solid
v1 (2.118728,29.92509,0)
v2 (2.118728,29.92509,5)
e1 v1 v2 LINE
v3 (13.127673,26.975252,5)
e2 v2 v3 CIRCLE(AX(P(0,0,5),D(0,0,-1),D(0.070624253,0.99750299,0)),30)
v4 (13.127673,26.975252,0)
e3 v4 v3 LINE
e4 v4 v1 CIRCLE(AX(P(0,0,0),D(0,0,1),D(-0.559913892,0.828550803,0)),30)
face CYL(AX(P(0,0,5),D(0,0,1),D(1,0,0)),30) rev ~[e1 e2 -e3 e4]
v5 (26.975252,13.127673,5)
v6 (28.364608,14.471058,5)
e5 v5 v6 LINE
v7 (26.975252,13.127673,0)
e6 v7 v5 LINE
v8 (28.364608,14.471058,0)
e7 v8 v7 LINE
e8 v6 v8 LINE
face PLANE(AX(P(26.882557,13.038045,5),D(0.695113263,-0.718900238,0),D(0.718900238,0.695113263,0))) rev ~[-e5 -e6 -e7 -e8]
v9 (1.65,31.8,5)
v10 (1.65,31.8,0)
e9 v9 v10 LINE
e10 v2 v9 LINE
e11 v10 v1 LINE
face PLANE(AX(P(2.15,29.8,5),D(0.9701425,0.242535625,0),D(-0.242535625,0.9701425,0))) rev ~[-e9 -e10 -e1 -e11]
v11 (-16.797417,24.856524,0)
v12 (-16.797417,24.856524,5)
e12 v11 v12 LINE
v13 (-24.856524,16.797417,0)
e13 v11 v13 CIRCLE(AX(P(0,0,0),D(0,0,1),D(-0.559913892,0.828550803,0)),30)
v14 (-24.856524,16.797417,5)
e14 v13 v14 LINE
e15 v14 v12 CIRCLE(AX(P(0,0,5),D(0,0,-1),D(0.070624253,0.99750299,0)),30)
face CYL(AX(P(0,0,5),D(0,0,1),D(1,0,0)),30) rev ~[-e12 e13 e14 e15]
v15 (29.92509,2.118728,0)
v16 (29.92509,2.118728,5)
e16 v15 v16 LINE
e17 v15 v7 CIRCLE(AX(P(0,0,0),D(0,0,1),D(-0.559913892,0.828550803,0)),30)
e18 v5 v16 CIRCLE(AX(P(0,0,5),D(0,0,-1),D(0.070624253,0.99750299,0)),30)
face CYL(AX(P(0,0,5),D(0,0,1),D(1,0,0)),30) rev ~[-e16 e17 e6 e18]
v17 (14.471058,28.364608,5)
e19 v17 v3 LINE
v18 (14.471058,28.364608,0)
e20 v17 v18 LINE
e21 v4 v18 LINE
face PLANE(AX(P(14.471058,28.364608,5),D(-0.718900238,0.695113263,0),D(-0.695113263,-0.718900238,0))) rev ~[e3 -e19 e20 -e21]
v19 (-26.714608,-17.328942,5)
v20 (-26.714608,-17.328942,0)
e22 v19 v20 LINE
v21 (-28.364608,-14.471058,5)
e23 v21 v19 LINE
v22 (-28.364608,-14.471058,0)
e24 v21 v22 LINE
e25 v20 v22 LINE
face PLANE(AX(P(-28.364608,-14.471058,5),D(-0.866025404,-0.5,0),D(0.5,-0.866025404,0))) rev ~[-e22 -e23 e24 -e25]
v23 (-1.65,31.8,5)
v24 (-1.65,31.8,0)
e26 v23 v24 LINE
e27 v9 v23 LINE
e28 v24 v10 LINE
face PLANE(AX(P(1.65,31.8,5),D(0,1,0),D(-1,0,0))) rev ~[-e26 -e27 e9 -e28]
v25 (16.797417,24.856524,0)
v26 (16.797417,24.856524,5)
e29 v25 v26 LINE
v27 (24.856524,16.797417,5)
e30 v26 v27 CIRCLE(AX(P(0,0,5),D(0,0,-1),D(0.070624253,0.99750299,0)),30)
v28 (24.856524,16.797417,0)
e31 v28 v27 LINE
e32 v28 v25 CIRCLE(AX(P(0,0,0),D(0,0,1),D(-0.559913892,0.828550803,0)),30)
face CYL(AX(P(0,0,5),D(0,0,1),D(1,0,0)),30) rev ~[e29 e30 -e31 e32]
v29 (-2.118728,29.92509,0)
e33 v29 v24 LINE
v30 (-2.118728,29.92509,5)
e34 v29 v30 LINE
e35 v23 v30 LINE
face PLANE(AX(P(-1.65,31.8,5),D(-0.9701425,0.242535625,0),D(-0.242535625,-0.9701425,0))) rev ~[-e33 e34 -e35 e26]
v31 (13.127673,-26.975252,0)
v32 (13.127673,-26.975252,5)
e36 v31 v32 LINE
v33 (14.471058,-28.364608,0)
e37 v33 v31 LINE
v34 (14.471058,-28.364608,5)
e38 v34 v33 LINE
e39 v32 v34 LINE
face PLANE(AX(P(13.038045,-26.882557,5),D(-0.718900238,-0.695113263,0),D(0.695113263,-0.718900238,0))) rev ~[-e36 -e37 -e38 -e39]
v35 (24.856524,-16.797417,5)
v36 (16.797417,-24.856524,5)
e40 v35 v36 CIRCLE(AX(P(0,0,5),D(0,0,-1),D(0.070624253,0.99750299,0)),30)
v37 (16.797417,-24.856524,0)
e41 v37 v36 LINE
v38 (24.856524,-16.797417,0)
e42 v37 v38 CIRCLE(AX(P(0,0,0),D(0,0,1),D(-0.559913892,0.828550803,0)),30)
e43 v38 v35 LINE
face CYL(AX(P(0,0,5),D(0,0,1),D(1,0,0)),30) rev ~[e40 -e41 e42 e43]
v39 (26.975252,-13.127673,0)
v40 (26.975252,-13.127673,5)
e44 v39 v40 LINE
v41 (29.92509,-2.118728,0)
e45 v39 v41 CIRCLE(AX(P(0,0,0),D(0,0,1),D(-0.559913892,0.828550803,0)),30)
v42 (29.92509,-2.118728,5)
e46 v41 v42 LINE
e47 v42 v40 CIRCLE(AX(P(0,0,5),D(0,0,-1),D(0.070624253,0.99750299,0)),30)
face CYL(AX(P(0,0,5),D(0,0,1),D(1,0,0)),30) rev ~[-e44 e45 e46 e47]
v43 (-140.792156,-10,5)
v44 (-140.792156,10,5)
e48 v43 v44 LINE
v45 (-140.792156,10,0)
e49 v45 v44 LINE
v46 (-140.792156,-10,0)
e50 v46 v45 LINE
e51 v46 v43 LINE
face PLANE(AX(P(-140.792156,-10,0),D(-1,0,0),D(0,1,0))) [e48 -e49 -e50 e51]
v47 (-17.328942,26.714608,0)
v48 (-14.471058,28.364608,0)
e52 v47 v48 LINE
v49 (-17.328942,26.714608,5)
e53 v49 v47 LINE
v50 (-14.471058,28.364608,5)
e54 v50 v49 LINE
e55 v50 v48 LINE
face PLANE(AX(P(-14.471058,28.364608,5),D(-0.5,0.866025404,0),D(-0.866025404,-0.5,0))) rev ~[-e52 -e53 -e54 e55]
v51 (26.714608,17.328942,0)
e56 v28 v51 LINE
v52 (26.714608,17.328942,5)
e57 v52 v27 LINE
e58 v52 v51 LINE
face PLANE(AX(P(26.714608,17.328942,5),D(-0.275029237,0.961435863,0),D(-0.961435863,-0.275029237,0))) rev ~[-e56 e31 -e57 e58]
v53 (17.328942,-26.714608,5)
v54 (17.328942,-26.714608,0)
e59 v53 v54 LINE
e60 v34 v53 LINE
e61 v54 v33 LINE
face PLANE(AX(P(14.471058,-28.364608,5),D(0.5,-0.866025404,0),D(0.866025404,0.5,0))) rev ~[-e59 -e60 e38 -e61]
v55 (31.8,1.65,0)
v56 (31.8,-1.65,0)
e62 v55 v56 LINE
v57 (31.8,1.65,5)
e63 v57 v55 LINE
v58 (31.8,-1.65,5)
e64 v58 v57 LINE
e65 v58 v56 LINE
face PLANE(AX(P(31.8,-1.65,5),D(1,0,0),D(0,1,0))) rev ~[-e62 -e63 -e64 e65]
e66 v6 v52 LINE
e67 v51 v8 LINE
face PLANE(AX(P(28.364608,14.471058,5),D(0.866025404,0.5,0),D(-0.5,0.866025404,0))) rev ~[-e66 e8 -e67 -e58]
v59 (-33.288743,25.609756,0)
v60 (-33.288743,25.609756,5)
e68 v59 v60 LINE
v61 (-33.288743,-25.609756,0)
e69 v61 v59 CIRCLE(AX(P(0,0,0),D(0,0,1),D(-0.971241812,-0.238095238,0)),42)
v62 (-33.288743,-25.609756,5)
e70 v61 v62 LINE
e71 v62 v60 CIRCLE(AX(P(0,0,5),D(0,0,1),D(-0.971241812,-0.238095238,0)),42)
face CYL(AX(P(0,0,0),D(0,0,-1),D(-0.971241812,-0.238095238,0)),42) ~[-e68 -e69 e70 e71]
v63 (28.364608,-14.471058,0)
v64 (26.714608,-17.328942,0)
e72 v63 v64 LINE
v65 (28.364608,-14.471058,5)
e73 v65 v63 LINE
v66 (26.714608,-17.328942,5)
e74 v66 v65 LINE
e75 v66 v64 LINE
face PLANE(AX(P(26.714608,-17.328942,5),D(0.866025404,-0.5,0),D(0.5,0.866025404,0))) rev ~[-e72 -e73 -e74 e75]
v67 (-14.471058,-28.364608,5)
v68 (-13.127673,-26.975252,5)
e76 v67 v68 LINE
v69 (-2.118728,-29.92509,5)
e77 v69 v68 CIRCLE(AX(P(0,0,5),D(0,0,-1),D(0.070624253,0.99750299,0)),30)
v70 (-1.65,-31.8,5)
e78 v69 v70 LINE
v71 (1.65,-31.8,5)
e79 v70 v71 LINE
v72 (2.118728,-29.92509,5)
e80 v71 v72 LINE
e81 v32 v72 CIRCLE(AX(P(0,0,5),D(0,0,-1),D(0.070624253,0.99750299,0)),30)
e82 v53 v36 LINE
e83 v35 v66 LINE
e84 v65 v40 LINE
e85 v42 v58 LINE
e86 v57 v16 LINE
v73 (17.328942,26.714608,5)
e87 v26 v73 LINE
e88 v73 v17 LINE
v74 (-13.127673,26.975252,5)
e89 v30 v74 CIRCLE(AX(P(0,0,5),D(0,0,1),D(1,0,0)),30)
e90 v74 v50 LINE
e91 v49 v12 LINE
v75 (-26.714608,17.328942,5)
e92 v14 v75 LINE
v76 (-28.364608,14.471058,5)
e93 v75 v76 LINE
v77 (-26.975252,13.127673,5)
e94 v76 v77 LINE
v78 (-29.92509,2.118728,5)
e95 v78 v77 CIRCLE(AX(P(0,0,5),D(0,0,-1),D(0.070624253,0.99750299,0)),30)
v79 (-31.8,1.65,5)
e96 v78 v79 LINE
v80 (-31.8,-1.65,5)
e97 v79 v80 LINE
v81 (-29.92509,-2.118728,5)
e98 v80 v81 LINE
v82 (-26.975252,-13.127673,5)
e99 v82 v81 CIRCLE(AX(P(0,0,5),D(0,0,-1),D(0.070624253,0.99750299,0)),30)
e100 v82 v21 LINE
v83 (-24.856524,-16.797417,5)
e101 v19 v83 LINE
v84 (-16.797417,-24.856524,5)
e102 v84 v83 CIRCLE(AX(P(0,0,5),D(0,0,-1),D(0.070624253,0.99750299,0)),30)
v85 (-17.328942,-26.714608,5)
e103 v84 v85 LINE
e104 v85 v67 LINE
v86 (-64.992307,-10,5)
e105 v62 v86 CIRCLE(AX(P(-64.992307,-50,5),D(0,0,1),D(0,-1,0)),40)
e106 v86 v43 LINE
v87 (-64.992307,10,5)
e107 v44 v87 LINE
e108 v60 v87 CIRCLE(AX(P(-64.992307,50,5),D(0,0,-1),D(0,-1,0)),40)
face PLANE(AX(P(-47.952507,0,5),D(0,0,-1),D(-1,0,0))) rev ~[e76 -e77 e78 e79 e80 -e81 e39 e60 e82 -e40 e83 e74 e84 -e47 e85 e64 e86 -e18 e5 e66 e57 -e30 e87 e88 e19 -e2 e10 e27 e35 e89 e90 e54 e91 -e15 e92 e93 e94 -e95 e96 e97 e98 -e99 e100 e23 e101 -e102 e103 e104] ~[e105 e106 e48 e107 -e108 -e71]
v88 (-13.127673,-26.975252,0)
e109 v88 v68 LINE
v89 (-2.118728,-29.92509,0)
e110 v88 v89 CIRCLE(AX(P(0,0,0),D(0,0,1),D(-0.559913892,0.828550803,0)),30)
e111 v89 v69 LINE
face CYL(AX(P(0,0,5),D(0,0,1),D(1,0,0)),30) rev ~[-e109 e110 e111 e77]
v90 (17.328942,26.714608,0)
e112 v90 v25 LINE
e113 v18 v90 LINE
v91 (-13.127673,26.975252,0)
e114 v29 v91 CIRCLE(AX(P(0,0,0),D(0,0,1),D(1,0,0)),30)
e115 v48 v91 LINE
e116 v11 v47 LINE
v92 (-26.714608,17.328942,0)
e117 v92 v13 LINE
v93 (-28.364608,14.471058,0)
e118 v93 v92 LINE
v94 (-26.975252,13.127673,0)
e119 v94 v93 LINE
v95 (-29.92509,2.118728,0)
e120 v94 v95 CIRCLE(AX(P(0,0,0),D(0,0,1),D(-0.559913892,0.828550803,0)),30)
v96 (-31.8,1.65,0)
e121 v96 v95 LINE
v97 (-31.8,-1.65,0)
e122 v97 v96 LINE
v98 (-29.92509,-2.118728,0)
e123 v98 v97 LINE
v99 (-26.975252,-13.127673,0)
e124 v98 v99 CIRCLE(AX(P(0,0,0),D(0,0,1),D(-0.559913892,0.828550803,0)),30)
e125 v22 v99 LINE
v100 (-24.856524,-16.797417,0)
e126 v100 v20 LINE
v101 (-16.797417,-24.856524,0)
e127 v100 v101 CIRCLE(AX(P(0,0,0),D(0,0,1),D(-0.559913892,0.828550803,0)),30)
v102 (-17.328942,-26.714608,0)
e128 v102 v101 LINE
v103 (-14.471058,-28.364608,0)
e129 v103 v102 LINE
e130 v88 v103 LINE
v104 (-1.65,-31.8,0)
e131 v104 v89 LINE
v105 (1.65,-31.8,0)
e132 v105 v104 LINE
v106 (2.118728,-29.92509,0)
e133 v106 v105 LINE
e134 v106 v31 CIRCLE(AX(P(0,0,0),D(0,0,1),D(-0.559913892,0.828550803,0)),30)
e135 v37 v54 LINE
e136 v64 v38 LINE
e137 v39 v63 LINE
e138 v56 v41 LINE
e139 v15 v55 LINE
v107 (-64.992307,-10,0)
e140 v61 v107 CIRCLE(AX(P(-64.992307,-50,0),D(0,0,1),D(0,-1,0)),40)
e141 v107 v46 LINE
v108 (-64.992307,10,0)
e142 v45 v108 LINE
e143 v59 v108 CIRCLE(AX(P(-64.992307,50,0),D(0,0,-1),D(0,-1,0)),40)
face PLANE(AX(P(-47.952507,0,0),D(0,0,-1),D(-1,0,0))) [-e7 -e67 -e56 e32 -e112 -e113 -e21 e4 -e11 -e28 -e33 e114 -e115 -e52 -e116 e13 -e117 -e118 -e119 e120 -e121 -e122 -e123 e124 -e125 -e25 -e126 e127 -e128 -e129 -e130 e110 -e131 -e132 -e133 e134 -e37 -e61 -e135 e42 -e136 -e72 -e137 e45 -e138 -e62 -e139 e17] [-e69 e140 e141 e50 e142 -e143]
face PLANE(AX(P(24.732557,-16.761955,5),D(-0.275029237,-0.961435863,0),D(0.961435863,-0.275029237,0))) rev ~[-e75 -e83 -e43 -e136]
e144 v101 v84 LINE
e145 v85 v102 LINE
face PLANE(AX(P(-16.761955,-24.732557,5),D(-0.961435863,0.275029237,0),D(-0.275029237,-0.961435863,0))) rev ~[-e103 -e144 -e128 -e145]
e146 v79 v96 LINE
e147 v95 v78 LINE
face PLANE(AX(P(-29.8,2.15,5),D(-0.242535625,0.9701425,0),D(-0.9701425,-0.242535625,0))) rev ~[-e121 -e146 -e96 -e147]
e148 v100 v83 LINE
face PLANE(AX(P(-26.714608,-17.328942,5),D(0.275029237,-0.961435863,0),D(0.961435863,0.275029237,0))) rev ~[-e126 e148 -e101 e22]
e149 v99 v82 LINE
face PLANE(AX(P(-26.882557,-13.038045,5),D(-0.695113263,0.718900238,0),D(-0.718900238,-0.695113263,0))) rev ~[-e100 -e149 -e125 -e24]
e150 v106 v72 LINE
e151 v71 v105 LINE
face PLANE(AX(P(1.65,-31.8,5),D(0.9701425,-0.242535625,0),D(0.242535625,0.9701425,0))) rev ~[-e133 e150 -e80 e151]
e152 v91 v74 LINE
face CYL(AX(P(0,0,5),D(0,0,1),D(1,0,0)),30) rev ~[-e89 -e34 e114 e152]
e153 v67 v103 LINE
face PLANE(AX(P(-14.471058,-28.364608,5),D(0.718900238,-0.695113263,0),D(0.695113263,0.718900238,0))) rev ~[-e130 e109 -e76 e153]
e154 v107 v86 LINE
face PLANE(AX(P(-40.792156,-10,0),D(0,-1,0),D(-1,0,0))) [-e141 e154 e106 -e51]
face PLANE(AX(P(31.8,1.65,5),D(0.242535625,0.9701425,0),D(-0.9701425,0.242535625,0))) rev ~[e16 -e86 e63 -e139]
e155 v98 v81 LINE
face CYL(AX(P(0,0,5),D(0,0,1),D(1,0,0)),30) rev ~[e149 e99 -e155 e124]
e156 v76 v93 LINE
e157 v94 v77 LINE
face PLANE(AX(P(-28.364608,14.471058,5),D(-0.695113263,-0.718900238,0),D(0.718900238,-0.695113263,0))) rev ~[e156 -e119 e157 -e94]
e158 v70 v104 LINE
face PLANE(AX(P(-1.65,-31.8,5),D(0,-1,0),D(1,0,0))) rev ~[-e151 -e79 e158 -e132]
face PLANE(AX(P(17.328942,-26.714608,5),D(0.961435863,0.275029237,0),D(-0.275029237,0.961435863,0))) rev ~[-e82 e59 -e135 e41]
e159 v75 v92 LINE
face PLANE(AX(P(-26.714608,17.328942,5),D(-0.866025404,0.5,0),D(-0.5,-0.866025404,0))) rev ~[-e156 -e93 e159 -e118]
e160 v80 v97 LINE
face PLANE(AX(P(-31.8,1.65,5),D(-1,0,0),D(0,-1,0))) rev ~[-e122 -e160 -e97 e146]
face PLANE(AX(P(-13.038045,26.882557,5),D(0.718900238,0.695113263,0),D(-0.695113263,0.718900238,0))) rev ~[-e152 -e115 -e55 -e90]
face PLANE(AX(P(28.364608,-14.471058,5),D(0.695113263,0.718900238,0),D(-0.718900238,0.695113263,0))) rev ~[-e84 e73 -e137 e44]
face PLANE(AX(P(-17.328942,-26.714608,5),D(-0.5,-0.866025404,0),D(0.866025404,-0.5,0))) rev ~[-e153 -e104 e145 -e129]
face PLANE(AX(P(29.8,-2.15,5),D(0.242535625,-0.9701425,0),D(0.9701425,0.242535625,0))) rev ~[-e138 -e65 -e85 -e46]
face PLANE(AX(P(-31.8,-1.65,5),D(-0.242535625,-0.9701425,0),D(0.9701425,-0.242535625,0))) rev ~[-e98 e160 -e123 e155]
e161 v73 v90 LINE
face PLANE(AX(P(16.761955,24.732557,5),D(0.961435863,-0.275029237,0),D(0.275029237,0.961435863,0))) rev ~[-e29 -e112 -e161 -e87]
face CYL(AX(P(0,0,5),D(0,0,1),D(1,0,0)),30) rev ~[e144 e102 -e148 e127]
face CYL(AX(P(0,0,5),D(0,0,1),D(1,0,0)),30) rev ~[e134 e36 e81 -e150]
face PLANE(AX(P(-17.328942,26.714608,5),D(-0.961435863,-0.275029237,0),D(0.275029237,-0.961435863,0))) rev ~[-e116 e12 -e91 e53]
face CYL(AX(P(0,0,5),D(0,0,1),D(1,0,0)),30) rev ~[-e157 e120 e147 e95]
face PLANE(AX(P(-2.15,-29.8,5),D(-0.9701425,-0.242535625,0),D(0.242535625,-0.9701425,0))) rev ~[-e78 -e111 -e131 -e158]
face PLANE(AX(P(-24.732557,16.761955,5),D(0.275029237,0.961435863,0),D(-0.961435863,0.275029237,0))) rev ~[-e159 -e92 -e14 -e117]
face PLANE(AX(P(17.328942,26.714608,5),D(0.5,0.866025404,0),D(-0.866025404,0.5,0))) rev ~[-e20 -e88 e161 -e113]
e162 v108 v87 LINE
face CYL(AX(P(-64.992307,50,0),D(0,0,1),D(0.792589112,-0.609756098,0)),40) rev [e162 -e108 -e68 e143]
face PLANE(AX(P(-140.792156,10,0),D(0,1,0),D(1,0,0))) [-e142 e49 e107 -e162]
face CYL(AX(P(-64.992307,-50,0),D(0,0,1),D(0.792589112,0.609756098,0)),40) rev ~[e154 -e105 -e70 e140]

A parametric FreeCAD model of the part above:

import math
import FreeCAD as App
import Part
import Sketcher
Q = App.Units.Quantity


def edges_at(feature, points):
    """Names of the edges that pass closest to the given points."""
    edges = feature.Shape.Edges
    near = lambda p: min(range(len(edges)), key=lambda i: edges[i].distToShape(Part.Vertex(*p))[0])
    return sorted({f"Edge{near(p) + 1}" for p in points})


def add_polygon(sketch, points):
    """Adds a closed chain of lines whose ends are joined by coincident constraints."""
    first, n = sketch.GeometryCount, len(points)
    for a, b in zip(points, points[1:] + points[:1]):
        sketch.addGeometry(Part.LineSegment(App.Vector(*a, 0), App.Vector(*b, 0)), False)
    for i in range(n):
        sketch.addConstraint(Sketcher.Constraint("Coincident", first + i, 2, first + (i + 1) % n, 1))

doc = App.newDocument("Part")
params = doc.addObject("Spreadsheet::Sheet", "Params")
for row, (alias, value) in enumerate([
    ("sketch1_radius", "42 mm"),
    ("sketch1_width", "100 mm"),
    ("sketch1_height", "20 mm"),
    ("pad1_length", "5 mm"),
    ("sketch2_diameter", "60 mm"),
    ("sketch3_width", "4.3 mm"),
    ("sketch3_width2", "3.3 mm"),
    ("fillet_radius", "40 mm"),
    ("fillet2_radius", "40 mm"),
], start=1):
    params.set(f"A{row}", alias)
    params.set(f"B{row}", "=" + value)
    params.setAlias(f"B{row}", alias)

body = doc.addObject("PartDesign::Body", "Body")

sketch1 = body.newObject("Sketcher::SketchObject", "Sketch")
sketch1.AttachmentSupport = (doc.getObject("XY_Plane"), [""])
sketch1.MapMode = "FlatFace"
sketch1.addGeometry([
    Part.LineSegment(App.Vector(-41, 10, 0), App.Vector(-141, 10, 0)),
    Part.LineSegment(App.Vector(-141, 10, 0), App.Vector(-141, -10, 0)),
    Part.LineSegment(App.Vector(-141, -10, 0), App.Vector(-41, -10, 0)),
    Part.ArcOfCircle(Part.Circle(App.Vector(0, 0, 0), App.Vector(0, 0, 1), 42), math.radians(-166), math.radians(166)),
], False)
sketch1.addConstraint([
    Sketcher.Constraint("Coincident", 0, 2, 1, 1),
    Sketcher.Constraint("Coincident", 1, 2, 2, 1),
    Sketcher.Constraint("Coincident", 2, 2, 3, 1),
    Sketcher.Constraint("Coincident", 3, 2, 0, 1),
    Sketcher.Constraint("Horizontal", 0),
    Sketcher.Constraint("Vertical", 1),
    Sketcher.Constraint("Horizontal", 2),
    Sketcher.Constraint("Coincident", 3, 3, -1, 1),
    Sketcher.Constraint("Vertical", 2, 2, 3, 2),
    Sketcher.Constraint("Radius", 3, Q("42 mm")),
    Sketcher.Constraint("DistanceX", 0, 2, 0, 1, Q("100 mm")),
    Sketcher.Constraint("DistanceY", 1, 2, 1, 1, Q("20 mm")),
])
sketch1.setExpression("Constraints[9]", "Params.sketch1_radius")
sketch1.setExpression("Constraints[10]", "Params.sketch1_width")
sketch1.setExpression("Constraints[11]", "Params.sketch1_height")
pad1 = body.newObject("PartDesign::Pad", "Pad")
pad1.Profile = sketch1
pad1.setExpression("Length", "Params.pad1_length")

sketch2 = body.newObject("Sketcher::SketchObject", "Sketch001")
sketch2.AttachmentSupport = (doc.getObject("XY_Plane"), [""])
sketch2.MapMode = "FlatFace"
sketch2.AttachmentOffset = App.Placement(App.Vector(0, 0, 5), App.Rotation())
sketch2.addGeometry(Part.Circle(App.Vector(0, 0, 0), App.Vector(0, 0, 1), 30), False)
sketch2.addConstraint([
    Sketcher.Constraint("Coincident", 0, 3, -1, 1),
    Sketcher.Constraint("Diameter", 0, Q("60 mm")),
])
sketch2.setExpression("Constraints[1]", "Params.sketch2_diameter")
pocket1 = body.newObject("PartDesign::Pocket", "Pocket")
pocket1.Profile = sketch2
pocket1.Type = "ThroughAll"

sketch3 = body.newObject("Sketcher::SketchObject", "Sketch002")
sketch3.AttachmentSupport = (doc.getObject("XY_Plane"), [""])
sketch3.MapMode = "FlatFace"
sketch3.AttachmentOffset = App.Placement(App.Vector(0, 0, 5), App.Rotation())
add_polygon(sketch3, [(-1.6, 31.8), (-2.1, 29.8), (2.1, 29.8), (1.6, 31.8)])
sketch3.addConstraint([
    Sketcher.Constraint("Horizontal", 1),
    Sketcher.Constraint("Horizontal", 3),
    Sketcher.Constraint("Equal", 0, 2),
    Sketcher.Constraint("DistanceX", 1, 1, 1, 2, Q("4.3 mm")),
    Sketcher.Constraint("DistanceX", 3, 2, 3, 1, Q("3.3 mm")),
    Sketcher.Constraint("DistanceY", 1, 2, 2, 2, Q("2 mm")),
    Sketcher.Constraint("DistanceY", -1, 1, 0, 2, Q("29.8 mm")),
    Sketcher.Constraint("DistanceX", 0, 2, -1, 1, Q("2.15 mm")),
])
sketch3.setExpression("Constraints[7]", "Params.sketch3_width")
sketch3.setExpression("Constraints[8]", "Params.sketch3_width2")
pocket2 = body.newObject("PartDesign::Pocket", "Pocket001")
pocket2.Profile = sketch3
pocket2.Type = "ThroughAll"
doc.recompute()

polarpattern = body.newObject("PartDesign::PolarPattern", "PolarPattern")
polarpattern.Originals = [pocket2]
polarpattern.Axis = (doc.getObject("Z_Axis"), [""])
polarpattern.Angle = 360
polarpattern.Occurrences = 12
body.Tip = polarpattern
doc.recompute()

fillet = body.newObject("PartDesign::Fillet", "Fillet")
fillet.Base = (polarpattern, edges_at(polarpattern, [(-40.792, -10, 2.5)]))
fillet.setExpression("Radius", "Params.fillet_radius")
doc.recompute()

fillet2 = body.newObject("PartDesign::Fillet", "Fillet001")
fillet2.Base = (fillet, edges_at(fillet, [(-40.792, 10, 2.5)]))
fillet2.setExpression("Radius", "Params.fillet2_radius")

doc.recompute()
